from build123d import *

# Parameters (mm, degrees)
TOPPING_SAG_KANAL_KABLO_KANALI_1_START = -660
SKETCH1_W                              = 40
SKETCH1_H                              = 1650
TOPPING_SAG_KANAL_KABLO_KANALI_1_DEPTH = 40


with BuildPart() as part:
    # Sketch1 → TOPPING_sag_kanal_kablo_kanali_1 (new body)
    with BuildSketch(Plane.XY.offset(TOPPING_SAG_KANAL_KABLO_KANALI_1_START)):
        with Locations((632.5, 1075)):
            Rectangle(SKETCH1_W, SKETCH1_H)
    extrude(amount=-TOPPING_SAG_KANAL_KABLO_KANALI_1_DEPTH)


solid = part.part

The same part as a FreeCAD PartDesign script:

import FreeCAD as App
import Part
import Sketcher

V = App.Vector


def add_polygon(sketch, points):
    """Adds a closed chain of lines whose ends are joined by coincident constraints."""
    first, n = sketch.GeometryCount, len(points)
    for a, b in zip(points, points[1:] + points[:1]):
        sketch.addGeometry(Part.LineSegment(App.Vector(*a, 0), App.Vector(*b, 0)), False)
    for i in range(n):
        sketch.addConstraint(Sketcher.Constraint("Coincident", first + i, 2, first + (i + 1) % n, 1))

doc = App.newDocument("Part")
body = doc.addObject("PartDesign::Body", "Body")

sketch1 = body.newObject("Sketcher::SketchObject", "Sketch")
sketch1.AttachmentSupport = (doc.getObject("XY_Plane"), [""])
sketch1.MapMode = "FlatFace"
sketch1.AttachmentOffset = App.Placement(V(0, 0, -660), App.Rotation())
add_polygon(sketch1, [(612.5, 1900), (612.5, 250), (652.5, 250), (652.5, 1900)])
sketch1.addConstraint(Sketcher.Constraint("Vertical", 0))
sketch1.addConstraint(Sketcher.Constraint("Horizontal", 1))
sketch1.addConstraint(Sketcher.Constraint("Vertical", 2))
sketch1.addConstraint(Sketcher.Constraint("Horizontal", 3))
sketch1.addConstraint(Sketcher.Constraint("DistanceX", 1, 1, 1, 2, 40.0))
sketch1.addConstraint(Sketcher.Constraint("DistanceY", 0, 2, 0, 1, 1650.0))
sketch1.addConstraint(Sketcher.Constraint("DistanceY", -1, 1, 0, 2, 250.0))
sketch1.addConstraint(Sketcher.Constraint("DistanceX", -1, 1, 0, 2, 612.5))
pad1 = body.newObject("PartDesign::Pad", "Pad")
pad1.Profile = sketch1
pad1.Length = 40
pad1.Reversed = True

doc.recompute()
